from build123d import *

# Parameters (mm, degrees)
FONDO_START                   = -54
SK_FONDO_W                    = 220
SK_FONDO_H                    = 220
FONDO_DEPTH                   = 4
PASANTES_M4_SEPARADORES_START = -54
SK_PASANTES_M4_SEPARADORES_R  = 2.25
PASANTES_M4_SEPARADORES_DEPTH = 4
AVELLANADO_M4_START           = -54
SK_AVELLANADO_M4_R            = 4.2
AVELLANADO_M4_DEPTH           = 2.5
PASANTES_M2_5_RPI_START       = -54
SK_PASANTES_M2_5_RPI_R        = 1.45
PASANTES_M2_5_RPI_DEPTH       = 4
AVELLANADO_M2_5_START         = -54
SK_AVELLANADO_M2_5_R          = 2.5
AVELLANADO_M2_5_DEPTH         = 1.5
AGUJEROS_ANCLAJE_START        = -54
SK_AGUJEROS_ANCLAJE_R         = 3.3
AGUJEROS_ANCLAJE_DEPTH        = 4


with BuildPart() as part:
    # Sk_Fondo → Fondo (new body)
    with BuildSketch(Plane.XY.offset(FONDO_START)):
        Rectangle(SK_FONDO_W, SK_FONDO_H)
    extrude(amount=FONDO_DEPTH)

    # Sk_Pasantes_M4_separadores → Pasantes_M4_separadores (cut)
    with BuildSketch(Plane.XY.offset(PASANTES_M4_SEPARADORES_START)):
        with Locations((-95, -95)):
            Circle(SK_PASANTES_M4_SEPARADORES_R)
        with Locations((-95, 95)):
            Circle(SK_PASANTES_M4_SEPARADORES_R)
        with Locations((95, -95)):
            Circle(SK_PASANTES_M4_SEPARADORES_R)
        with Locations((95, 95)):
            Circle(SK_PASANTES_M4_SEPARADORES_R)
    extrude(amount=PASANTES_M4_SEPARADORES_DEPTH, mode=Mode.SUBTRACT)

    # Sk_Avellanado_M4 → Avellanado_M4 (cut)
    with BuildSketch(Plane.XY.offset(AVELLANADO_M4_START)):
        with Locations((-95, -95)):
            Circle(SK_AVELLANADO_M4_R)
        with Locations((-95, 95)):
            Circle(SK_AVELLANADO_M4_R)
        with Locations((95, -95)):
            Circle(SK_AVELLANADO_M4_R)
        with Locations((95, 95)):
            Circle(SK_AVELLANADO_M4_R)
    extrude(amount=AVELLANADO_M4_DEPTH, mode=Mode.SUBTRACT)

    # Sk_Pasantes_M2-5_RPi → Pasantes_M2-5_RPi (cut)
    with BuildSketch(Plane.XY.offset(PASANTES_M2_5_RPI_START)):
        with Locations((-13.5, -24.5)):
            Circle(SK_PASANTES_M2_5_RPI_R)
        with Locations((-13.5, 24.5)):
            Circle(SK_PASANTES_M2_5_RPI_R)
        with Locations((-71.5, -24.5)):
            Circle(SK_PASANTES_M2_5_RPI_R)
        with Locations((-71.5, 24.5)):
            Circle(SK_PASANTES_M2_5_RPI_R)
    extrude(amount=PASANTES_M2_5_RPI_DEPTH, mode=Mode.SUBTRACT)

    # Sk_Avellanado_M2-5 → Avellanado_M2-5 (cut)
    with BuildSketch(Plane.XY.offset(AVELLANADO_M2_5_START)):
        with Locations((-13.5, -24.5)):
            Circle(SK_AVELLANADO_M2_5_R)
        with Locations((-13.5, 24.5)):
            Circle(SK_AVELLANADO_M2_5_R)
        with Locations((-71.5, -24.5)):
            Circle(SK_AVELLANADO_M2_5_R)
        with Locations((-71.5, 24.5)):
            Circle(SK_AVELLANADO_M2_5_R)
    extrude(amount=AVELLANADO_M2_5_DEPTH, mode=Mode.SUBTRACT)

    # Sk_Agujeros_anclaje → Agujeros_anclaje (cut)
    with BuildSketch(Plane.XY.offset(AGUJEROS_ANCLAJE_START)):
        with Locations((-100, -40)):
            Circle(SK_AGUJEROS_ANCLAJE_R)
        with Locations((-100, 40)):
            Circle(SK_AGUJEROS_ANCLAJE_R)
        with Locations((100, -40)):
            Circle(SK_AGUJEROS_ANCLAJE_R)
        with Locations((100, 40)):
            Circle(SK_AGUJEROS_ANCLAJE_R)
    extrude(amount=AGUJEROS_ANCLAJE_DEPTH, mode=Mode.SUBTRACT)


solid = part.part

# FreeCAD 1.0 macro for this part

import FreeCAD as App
import Part
import Sketcher
from FreeCAD import Vector
Q = App.Units.Quantity


def add_polygon(sketch, points):
    """Adds a closed chain of lines whose ends are joined by coincident constraints."""
    first, n = sketch.GeometryCount, len(points)
    for a, b in zip(points, points[1:] + points[:1]):
        sketch.addGeometry(Part.LineSegment(App.Vector(*a, 0), App.Vector(*b, 0)), False)
    for i in range(n):
        sketch.addConstraint(Sketcher.Constraint("Coincident", first + i, 2, first + (i + 1) % n, 1))

doc = App.newDocument("Part")
params = doc.addObject("Spreadsheet::Sheet", "Params")
for row, (alias, value) in enumerate([
    ("sketch1_width", "220 mm"),
    ("pad1_length", "4 mm"),
    ("sketch2_diameter", "4.5 mm"),
    ("pocket1_length", "4 mm"),
    ("sketch3_diameter", "8.4 mm"),
    ("pocket2_length", "2.5 mm"),
    ("sketch4_diameter", "2.9 mm"),
    ("pocket3_length", "4 mm"),
    ("sketch5_diameter", "5 mm"),
    ("pocket4_length", "1.5 mm"),
    ("sketch6_diameter", "6.6 mm"),
    ("pocket5_length", "4 mm"),
], start=1):
    params.set(f"A{row}", alias)
    params.set(f"B{row}", "=" + value)
    params.setAlias(f"B{row}", alias)

body = doc.addObject("PartDesign::Body", "Body")

# Sketch on XY plane
sketch1 = body.newObject("Sketcher::SketchObject", "Sketch")
sketch1.AttachmentSupport = (doc.getObject("XY_Plane"), [""])
sketch1.MapMode = "FlatFace"
sketch1.AttachmentOffset = App.Placement(Vector(0, 0, -54), App.Rotation())
add_polygon(sketch1, [(-110, 110), (-110, -110), (110, -110), (110, 110)])  # lines 0-3
sketch1.addConstraint([
    Sketcher.Constraint("Vertical", 0),
    Sketcher.Constraint("Horizontal", 1),
    Sketcher.Constraint("Vertical", 2),
    Sketcher.Constraint("Horizontal", 3),
    Sketcher.Constraint("Symmetric", 0, 2, 2, 2, -1, 1),
    Sketcher.Constraint("Equal", 3, 0),
    Sketcher.Constraint("DistanceX", 1, 1, 1, 2, Q("220 mm")),
])
sketch1.setExpression("Constraints[10]", "Params.sketch1_width")
pad1 = body.newObject("PartDesign::Pad", "Pad")
pad1.Profile = sketch1
pad1.setExpression("Length", "Params.pad1_length")

# Sketch on XY plane
sketch2 = body.newObject("Sketcher::SketchObject", "Sketch001")
sketch2.AttachmentSupport = (doc.getObject("XY_Plane"), [""])
sketch2.MapMode = "FlatFace"
sketch2.AttachmentOffset = App.Placement(Vector(0, 0, -54), App.Rotation())
sketch2.addGeometry([
    Part.Circle(Vector(-95, -95, 0), Vector(0, 0, 1), 2.2),
    Part.Circle(Vector(-95, 95, 0), Vector(0, 0, 1), 2.2),
    Part.Circle(Vector(95, -95, 0), Vector(0, 0, 1), 2.2),
    Part.Circle(Vector(95, 95, 0), Vector(0, 0, 1), 2.2),
], False)
sketch2.addConstraint([
    Sketcher.Constraint("Equal", 0, 1),
    Sketcher.Constraint("Equal", 1, 2),
    Sketcher.Constraint("Equal", 2, 3),
    Sketcher.Constraint("Symmetric", 1, 3, 2, 3, -1, 1),
    Sketcher.Constraint("Symmetric", 0, 3, 3, 3, -1, 1),
    Sketcher.Constraint("Symmetric", 0, 3, 2, 3, -2),
    Sketcher.Constraint("Diameter", 0, Q("4.5 mm")),
    Sketcher.Constraint("DistanceX", 0, 3, -1, 1, Q("95 mm")),
    Sketcher.Constraint("DistanceY", 0, 3, -1, 1, Q("95 mm")),
])
sketch2.setExpression("Constraints[6]", "Params.sketch2_diameter")
pocket1 = body.newObject("PartDesign::Pocket", "Pocket")
pocket1.Profile = sketch2
pocket1.setExpression("Length", "Params.pocket1_length")
pocket1.Reversed = True

# Sketch on XY plane
sketch3 = body.newObject("Sketcher::SketchObject", "Sketch002")
sketch3.AttachmentSupport = (doc.getObject("XY_Plane"), [""])
sketch3.MapMode = "FlatFace"
sketch3.AttachmentOffset = App.Placement(Vector(0, 0, -54), App.Rotation())
sketch3.addGeometry([
    Part.Circle(Vector(-95, -95, 0), Vector(0, 0, 1), 4.2),
    Part.Circle(Vector(-95, 95, 0), Vector(0, 0, 1), 4.2),
    Part.Circle(Vector(95, -95, 0), Vector(0, 0, 1), 4.2),
    Part.Circle(Vector(95, 95, 0), Vector(0, 0, 1), 4.2),
], False)
sketch3.addConstraint([
    Sketcher.Constraint("Equal", 0, 1),
    Sketcher.Constraint("Equal", 1, 2),
    Sketcher.Constraint("Equal", 2, 3),
    Sketcher.Constraint("Symmetric", 1, 3, 2, 3, -1, 1),
    Sketcher.Constraint("Symmetric", 0, 3, 3, 3, -1, 1),
    Sketcher.Constraint("Symmetric", 0, 3, 2, 3, -2),
    Sketcher.Constraint("Diameter", 0, Q("8.4 mm")),
    Sketcher.Constraint("DistanceX", 0, 3, -1, 1, Q("95 mm")),
    Sketcher.Constraint("DistanceY", 0, 3, -1, 1, Q("95 mm")),
])
sketch3.setExpression("Constraints[6]", "Params.sketch3_diameter")
pocket2 = body.newObject("PartDesign::Pocket", "Pocket001")
pocket2.Profile = sketch3
pocket2.setExpression("Length", "Params.pocket2_length")
pocket2.Reversed = True

# Sketch on XY plane
sketch4 = body.newObject("Sketcher::SketchObject", "Sketch003")
sketch4.AttachmentSupport = (doc.getObject("XY_Plane"), [""])
sketch4.MapMode = "FlatFace"
sketch4.AttachmentOffset = App.Placement(Vector(0, 0, -54), App.Rotation())
sketch4.addGeometry([
    Part.Circle(Vector(-13.5, -24.5, 0), Vector(0, 0, 1), 1.4),
    Part.Circle(Vector(-13.5, 24.5, 0), Vector(0, 0, 1), 1.4),
    Part.Circle(Vector(-71.5, -24.5, 0), Vector(0, 0, 1), 1.4),
    Part.Circle(Vector(-71.5, 24.5, 0), Vector(0, 0, 1), 1.4),
], False)
sketch4.addConstraint([
    Sketcher.Constraint("Equal", 0, 1),
    Sketcher.Constraint("Equal", 1, 2),
    Sketcher.Constraint("Equal", 2, 3),
    Sketcher.Constraint("Symmetric", 0, 3, 1, 3, -1),
    Sketcher.Constraint("Symmetric", 2, 3, 3, 3, -1),
    Sketcher.Constraint("Horizontal", 0, 3, 2, 3),
    Sketcher.Constraint("Diameter", 0, Q("2.9 mm")),
    Sketcher.Constraint("DistanceY", 0, 3, 1, 3, Q("49 mm")),
    Sketcher.Constraint("DistanceX", 2, 3, 0, 3, Q("58 mm")),
    Sketcher.Constraint("DistanceX", 0, 3, -1, 1, Q("13.5 mm")),
])
sketch4.setExpression("Constraints[6]", "Params.sketch4_diameter")
pocket3 = body.newObject("PartDesign::Pocket", "Pocket002")
pocket3.Profile = sketch4
pocket3.setExpression("Length", "Params.pocket3_length")
pocket3.Reversed = True

# Sketch on XY plane
sketch5 = body.newObject("Sketcher::SketchObject", "Sketch004")
sketch5.AttachmentSupport = (doc.getObject("XY_Plane"), [""])
sketch5.MapMode = "FlatFace"
sketch5.AttachmentOffset = App.Placement(Vector(0, 0, -54), App.Rotation())
sketch5.addGeometry([
    Part.Circle(Vector(-13.5, -24.5, 0), Vector(0, 0, 1), 2.5),
    Part.Circle(Vector(-13.5, 24.5, 0), Vector(0, 0, 1), 2.5),
    Part.Circle(Vector(-71.5, -24.5, 0), Vector(0, 0, 1), 2.5),
    Part.Circle(Vector(-71.5, 24.5, 0), Vector(0, 0, 1), 2.5),
], False)
sketch5.addConstraint([
    Sketcher.Constraint("Equal", 0, 1),
    Sketcher.Constraint("Equal", 1, 2),
    Sketcher.Constraint("Equal", 2, 3),
    Sketcher.Constraint("Symmetric", 0, 3, 1, 3, -1),
    Sketcher.Constraint("Symmetric", 2, 3, 3, 3, -1),
    Sketcher.Constraint("Horizontal", 0, 3, 2, 3),
    Sketcher.Constraint("Diameter", 0, Q("5 mm")),
    Sketcher.Constraint("DistanceY", 0, 3, 1, 3, Q("49 mm")),
    Sketcher.Constraint("DistanceX", 2, 3, 0, 3, Q("58 mm")),
    Sketcher.Constraint("DistanceX", 0, 3, -1, 1, Q("13.5 mm")),
])
sketch5.setExpression("Constraints[6]", "Params.sketch5_diameter")
pocket4 = body.newObject("PartDesign::Pocket", "Pocket003")
pocket4.Profile = sketch5
pocket4.setExpression("Length", "Params.pocket4_length")
pocket4.Reversed = True

# Sketch on XY plane
sketch6 = body.newObject("Sketcher::SketchObject", "Sketch005")
sketch6.AttachmentSupport = (doc.getObject("XY_Plane"), [""])
sketch6.MapMode = "FlatFace"
sketch6.AttachmentOffset = App.Placement(Vector(0, 0, -54), App.Rotation())
sketch6.addGeometry([
    Part.Circle(Vector(-100, -40, 0), Vector(0, 0, 1), 3.3),
    Part.Circle(Vector(-100, 40, 0), Vector(0, 0, 1), 3.3),
    Part.Circle(Vector(100, -40, 0), Vector(0, 0, 1), 3.3),
    Part.Circle(Vector(100, 40, 0), Vector(0, 0, 1), 3.3),
], False)
sketch6.addConstraint([
    Sketcher.Constraint("Equal", 0, 1),
    Sketcher.Constraint("Equal", 1, 2),
    Sketcher.Constraint("Equal", 2, 3),
    Sketcher.Constraint("Symmetric", 1, 3, 2, 3, -1, 1),
    Sketcher.Constraint("Symmetric", 0, 3, 3, 3, -1, 1),
    Sketcher.Constraint("Symmetric", 0, 3, 2, 3, -2),
    Sketcher.Constraint("Diameter", 0, Q("6.6 mm")),
    Sketcher.Constraint("DistanceX", 0, 3, -1, 1, Q("100 mm")),
    Sketcher.Constraint("DistanceY", 0, 3, -1, 1, Q("40 mm")),
])
sketch6.setExpression("Constraints[6]", "Params.sketch6_diameter")
pocket5 = body.newObject("PartDesign::Pocket", "Pocket004")
pocket5.Profile = sketch6
pocket5.setExpression("Length", "Params.pocket5_length")
pocket5.Reversed = True

doc.recompute()
